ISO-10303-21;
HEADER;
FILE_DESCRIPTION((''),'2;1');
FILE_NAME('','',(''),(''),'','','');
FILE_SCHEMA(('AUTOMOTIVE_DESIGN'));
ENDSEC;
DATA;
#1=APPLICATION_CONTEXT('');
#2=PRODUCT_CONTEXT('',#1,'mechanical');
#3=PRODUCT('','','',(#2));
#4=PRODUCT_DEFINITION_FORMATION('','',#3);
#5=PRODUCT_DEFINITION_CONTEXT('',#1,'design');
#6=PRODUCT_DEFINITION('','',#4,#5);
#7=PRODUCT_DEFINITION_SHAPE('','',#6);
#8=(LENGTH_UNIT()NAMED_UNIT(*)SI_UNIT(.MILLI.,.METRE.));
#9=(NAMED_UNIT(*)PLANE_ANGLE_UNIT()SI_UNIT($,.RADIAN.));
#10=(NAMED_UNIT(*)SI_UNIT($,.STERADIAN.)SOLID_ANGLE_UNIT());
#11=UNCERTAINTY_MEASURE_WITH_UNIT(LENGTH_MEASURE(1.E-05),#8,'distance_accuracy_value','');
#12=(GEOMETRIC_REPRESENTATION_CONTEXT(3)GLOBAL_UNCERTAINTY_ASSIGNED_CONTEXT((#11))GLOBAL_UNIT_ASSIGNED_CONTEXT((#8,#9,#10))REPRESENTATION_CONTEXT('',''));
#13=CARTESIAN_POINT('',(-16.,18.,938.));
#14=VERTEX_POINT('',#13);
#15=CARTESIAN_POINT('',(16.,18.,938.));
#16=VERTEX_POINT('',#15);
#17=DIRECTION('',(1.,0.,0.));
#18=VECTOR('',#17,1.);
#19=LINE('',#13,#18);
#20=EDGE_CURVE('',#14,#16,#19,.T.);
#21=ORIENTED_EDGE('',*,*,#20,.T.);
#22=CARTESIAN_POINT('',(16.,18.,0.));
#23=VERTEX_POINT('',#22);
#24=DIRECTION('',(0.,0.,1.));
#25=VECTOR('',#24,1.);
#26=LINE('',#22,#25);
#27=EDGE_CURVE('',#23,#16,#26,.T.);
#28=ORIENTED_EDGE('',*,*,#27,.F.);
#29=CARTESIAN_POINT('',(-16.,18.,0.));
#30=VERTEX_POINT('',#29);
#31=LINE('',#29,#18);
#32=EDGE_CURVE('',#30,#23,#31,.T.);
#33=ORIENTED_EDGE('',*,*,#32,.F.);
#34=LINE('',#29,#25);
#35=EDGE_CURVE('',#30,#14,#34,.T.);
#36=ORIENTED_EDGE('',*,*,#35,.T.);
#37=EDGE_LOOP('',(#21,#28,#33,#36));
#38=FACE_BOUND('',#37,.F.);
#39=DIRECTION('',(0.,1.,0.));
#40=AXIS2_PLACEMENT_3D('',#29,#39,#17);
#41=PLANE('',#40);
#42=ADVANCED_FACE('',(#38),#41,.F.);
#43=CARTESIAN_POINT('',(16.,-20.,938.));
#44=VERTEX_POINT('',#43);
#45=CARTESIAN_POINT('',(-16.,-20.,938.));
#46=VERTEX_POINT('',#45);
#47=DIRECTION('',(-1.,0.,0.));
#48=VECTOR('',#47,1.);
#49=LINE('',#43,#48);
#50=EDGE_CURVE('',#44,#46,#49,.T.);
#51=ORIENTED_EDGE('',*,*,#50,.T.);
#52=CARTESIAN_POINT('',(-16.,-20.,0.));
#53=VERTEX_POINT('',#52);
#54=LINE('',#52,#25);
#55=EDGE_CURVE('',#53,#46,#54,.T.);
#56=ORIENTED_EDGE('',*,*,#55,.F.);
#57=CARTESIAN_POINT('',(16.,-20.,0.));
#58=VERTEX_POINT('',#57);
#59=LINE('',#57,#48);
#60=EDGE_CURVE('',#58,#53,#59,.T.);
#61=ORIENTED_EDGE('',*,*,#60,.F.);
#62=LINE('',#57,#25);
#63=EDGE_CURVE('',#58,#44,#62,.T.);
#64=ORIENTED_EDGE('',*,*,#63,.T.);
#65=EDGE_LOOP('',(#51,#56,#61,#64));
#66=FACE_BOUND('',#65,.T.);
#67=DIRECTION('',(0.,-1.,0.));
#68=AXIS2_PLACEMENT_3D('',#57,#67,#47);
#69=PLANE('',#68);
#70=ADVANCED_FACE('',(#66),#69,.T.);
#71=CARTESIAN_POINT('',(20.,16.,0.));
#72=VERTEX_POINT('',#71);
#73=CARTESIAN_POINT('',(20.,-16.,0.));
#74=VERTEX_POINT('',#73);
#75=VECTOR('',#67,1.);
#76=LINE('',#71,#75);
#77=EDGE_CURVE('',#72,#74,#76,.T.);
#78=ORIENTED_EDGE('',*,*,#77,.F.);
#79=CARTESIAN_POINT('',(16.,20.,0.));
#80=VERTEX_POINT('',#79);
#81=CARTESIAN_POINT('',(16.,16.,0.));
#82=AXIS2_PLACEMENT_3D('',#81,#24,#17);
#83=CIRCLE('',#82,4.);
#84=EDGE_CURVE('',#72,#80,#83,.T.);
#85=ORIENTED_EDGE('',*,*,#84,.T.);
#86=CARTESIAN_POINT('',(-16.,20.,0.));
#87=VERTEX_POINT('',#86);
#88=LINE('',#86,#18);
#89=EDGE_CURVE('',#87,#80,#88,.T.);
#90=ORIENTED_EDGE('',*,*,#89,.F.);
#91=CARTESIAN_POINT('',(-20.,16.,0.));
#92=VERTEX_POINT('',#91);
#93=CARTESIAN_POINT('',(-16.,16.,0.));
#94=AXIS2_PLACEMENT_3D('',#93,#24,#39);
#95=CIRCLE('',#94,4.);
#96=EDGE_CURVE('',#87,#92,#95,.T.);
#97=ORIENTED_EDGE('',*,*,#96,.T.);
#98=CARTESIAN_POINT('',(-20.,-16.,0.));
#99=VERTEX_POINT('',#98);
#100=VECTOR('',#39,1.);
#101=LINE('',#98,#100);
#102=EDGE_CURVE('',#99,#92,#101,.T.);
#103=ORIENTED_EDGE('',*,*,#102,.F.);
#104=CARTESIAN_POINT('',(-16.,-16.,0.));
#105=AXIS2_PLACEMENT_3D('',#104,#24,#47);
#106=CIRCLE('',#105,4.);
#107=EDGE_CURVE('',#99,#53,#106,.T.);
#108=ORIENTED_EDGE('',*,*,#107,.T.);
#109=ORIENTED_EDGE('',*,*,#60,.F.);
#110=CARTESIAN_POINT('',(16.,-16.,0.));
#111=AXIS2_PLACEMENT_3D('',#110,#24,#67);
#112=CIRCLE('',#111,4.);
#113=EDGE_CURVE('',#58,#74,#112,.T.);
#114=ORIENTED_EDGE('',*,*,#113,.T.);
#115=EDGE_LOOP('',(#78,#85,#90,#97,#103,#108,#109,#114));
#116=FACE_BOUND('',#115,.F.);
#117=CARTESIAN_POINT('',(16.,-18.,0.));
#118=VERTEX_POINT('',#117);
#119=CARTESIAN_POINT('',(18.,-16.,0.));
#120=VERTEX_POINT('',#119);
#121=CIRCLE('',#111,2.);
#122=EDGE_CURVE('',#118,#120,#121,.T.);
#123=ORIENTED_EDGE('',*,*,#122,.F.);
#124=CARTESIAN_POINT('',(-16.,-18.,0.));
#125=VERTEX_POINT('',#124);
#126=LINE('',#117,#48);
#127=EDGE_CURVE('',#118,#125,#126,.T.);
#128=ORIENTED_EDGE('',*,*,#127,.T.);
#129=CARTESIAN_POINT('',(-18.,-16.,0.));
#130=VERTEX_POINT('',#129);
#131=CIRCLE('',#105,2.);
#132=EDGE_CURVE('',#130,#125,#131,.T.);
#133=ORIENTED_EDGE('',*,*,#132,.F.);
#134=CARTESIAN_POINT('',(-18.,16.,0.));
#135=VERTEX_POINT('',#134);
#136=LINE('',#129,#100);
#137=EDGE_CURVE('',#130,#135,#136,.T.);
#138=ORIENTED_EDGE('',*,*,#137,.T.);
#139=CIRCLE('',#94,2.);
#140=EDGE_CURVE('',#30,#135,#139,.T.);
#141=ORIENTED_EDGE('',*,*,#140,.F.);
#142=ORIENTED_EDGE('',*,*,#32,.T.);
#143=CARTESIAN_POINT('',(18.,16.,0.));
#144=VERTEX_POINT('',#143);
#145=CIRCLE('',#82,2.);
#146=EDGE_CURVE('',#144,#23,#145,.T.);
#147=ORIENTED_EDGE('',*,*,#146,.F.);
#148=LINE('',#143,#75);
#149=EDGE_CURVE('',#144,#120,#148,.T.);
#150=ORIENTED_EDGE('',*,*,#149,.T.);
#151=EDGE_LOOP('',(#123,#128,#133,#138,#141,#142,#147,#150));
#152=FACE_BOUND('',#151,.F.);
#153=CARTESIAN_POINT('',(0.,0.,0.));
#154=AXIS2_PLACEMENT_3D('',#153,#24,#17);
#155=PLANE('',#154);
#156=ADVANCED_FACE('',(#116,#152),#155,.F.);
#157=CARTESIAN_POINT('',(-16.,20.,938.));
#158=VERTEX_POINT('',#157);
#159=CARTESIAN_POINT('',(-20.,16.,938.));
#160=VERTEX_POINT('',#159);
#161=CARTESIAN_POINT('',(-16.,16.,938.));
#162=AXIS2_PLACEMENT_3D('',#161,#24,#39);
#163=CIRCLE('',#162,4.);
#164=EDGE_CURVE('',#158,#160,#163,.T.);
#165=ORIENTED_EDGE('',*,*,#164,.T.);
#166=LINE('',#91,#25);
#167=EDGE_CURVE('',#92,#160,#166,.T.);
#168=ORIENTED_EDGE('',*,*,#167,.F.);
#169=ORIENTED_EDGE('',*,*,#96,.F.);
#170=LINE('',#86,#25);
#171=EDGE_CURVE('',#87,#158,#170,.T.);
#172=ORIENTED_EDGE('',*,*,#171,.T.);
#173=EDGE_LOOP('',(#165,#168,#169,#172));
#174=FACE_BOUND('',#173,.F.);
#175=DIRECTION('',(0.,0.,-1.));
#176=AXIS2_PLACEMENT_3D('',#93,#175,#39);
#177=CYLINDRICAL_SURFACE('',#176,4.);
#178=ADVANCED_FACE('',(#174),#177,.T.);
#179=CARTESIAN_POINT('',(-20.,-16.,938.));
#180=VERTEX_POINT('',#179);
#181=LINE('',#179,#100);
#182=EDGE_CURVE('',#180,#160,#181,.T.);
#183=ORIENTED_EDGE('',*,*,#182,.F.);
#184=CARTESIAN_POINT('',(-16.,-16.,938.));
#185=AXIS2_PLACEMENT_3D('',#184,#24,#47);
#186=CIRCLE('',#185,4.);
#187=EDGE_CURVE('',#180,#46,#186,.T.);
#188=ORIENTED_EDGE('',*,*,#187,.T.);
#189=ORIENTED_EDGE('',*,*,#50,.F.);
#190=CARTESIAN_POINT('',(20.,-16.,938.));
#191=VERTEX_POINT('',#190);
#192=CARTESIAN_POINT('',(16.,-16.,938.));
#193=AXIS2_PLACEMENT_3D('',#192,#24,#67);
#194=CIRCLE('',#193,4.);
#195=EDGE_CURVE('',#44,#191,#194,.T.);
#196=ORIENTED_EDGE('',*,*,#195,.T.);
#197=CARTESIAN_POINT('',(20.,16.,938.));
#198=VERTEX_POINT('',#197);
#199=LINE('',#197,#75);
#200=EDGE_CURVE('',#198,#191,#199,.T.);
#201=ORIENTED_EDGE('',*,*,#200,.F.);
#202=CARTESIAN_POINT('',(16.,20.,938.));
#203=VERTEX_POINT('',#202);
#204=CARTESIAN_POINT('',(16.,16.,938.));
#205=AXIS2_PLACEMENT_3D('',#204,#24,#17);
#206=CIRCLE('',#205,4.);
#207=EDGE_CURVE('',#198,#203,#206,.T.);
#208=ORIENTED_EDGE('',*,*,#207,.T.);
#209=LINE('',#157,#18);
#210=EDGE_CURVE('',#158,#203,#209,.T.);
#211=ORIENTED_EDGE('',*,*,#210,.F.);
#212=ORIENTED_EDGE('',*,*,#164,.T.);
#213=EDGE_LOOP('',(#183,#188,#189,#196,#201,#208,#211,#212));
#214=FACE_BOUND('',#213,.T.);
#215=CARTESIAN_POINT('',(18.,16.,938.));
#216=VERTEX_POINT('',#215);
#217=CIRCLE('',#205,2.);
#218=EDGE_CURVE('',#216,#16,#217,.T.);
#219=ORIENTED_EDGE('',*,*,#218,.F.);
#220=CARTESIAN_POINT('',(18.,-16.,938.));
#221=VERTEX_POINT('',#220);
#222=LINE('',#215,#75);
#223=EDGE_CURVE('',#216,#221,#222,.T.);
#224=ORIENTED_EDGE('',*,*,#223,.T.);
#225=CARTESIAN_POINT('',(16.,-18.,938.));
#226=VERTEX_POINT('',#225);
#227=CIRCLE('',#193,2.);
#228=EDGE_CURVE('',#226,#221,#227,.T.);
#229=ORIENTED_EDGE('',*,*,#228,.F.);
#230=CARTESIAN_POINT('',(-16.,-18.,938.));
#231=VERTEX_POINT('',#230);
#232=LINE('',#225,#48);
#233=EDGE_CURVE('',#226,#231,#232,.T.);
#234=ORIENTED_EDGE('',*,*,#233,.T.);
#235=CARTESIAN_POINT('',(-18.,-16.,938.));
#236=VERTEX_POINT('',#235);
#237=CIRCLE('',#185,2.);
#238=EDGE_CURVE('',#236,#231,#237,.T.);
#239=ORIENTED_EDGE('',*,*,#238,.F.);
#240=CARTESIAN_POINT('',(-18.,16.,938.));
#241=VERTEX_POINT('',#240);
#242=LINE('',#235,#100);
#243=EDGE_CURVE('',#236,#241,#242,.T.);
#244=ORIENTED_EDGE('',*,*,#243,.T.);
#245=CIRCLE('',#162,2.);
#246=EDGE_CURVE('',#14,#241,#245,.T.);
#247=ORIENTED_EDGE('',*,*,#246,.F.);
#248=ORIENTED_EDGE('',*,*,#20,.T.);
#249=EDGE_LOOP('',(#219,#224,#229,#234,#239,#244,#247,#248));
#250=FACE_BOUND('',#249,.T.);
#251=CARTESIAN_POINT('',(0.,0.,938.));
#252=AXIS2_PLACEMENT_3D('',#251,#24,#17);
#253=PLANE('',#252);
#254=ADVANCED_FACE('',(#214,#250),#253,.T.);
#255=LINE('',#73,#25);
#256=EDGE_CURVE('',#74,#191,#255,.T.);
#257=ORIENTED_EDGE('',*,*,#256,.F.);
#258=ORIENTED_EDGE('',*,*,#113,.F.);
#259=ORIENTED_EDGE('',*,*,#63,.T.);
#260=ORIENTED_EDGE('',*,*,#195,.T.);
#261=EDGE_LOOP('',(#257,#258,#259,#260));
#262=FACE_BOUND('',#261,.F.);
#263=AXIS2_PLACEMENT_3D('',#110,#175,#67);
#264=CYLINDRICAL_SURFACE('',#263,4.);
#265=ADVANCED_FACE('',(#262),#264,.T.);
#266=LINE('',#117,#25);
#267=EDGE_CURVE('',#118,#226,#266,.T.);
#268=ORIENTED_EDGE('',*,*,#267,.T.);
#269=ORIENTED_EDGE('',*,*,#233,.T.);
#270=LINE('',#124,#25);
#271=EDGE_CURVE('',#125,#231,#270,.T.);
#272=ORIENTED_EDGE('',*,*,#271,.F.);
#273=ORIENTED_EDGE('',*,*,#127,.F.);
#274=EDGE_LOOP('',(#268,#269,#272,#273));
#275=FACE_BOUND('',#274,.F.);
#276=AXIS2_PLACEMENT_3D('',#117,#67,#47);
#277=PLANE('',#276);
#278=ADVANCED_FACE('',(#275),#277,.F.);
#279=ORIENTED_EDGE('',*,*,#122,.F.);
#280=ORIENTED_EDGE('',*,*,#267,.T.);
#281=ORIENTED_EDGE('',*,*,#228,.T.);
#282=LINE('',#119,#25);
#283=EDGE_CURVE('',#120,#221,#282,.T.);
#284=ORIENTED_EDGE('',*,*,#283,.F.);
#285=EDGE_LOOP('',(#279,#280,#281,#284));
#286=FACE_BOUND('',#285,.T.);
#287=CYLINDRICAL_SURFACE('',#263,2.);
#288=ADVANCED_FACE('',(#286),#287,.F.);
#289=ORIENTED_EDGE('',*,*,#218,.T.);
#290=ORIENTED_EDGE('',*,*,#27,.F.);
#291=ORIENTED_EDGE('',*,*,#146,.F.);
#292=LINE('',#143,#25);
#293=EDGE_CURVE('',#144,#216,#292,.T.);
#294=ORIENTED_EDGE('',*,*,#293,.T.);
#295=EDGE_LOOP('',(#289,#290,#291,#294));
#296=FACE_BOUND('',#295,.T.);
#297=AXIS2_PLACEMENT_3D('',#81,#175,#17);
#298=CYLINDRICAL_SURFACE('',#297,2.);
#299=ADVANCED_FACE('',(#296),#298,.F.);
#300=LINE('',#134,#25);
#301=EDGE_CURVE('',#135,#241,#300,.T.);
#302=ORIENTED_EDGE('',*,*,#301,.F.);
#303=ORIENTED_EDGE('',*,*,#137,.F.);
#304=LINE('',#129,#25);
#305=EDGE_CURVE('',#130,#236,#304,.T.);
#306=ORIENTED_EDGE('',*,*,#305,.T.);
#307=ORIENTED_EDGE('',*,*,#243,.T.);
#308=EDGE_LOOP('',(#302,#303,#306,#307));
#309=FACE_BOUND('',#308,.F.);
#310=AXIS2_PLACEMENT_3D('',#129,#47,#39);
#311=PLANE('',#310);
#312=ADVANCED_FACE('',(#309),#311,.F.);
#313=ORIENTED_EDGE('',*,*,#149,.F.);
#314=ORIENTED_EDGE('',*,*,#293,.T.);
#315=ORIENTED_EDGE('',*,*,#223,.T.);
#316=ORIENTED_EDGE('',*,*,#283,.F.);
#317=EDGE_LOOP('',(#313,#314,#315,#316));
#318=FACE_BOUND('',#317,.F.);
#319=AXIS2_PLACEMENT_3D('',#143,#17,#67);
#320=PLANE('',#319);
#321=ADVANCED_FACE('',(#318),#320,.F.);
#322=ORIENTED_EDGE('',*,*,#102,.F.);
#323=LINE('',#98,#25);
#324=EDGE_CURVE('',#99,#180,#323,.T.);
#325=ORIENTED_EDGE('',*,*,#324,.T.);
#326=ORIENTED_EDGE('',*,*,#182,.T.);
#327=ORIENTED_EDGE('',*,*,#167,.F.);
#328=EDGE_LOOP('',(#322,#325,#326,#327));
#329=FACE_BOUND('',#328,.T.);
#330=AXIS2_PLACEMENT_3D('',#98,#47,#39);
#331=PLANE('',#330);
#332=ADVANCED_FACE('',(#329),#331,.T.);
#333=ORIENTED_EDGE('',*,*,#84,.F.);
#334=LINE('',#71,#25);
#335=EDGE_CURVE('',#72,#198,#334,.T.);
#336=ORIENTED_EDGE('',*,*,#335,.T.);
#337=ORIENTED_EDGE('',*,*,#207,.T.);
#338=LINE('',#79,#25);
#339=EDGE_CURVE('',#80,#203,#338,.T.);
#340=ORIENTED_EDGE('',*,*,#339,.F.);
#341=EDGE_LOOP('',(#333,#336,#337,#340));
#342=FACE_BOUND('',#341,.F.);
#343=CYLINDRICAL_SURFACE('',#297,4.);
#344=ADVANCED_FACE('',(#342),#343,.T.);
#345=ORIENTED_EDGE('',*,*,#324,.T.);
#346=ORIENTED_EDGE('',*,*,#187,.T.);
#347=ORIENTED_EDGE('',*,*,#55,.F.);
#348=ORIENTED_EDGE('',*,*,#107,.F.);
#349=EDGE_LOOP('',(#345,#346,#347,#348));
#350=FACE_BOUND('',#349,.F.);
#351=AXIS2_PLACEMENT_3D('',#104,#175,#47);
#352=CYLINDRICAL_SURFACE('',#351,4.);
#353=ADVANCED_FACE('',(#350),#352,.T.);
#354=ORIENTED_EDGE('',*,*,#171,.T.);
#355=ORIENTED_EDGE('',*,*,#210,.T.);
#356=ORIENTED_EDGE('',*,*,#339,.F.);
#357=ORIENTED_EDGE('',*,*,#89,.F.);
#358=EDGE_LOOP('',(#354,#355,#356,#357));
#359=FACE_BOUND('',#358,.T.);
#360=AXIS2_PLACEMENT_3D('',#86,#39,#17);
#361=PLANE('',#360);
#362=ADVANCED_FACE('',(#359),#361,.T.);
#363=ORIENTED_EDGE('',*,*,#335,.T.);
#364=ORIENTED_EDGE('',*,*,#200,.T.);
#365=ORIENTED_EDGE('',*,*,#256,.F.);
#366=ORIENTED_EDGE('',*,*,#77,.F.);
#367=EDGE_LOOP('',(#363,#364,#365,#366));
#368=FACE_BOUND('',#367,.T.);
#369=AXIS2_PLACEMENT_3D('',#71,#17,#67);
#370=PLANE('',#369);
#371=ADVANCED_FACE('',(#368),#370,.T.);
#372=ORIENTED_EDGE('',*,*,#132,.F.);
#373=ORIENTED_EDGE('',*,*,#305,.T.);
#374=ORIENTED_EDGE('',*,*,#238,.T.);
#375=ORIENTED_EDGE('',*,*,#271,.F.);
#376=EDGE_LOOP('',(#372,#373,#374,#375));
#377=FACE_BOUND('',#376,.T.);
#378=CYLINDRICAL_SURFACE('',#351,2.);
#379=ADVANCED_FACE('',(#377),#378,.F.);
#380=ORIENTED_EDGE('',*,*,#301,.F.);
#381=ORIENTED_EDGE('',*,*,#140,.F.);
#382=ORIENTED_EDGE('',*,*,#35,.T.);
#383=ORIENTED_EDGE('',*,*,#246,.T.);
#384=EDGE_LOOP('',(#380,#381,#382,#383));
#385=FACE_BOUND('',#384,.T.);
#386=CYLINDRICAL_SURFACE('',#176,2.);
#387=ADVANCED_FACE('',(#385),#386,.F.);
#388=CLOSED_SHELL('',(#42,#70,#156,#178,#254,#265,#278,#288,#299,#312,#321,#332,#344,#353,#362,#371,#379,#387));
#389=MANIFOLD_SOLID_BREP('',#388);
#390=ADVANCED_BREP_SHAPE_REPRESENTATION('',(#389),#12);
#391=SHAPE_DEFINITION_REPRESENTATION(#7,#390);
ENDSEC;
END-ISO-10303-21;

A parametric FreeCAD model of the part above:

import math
import FreeCAD as App
import Part
import Sketcher
from FreeCAD import Vector
Q = App.Units.Quantity

doc = App.newDocument("Part")
params = doc.addObject("Spreadsheet::Sheet", "Params")
for row, (alias, value) in enumerate([
    ("sketch1_radius", "4 mm"),
    ("sketch1_radius2", "2 mm"),
    ("pad1_length", "938 mm"),
], start=1):
    params.set(f"A{row}", alias)
    params.set(f"B{row}", "=" + value)
    params.setAlias(f"B{row}", alias)

body = doc.addObject("PartDesign::Body", "Body")

sketch1 = doc.addObject("Sketcher::SketchObject", "Sketch")
body.addObject(sketch1)
sketch1.AttachmentSupport = (doc.XY_Plane, [""])
sketch1.MapMode = "FlatFace"
sketch1.addGeometry([
    Part.LineSegment(Vector(-20, 16, 0), Vector(-20, -16, 0)),
    Part.ArcOfCircle(Part.Circle(Vector(-16, -16, 0), Vector(0, 0, 1), 4), math.radians(180), math.radians(270)),
    Part.LineSegment(Vector(-16, -20, 0), Vector(16, -20, 0)),
    Part.ArcOfCircle(Part.Circle(Vector(16, -16, 0), Vector(0, 0, 1), 4), math.radians(-90), math.radians(0)),
    Part.LineSegment(Vector(20, -16, 0), Vector(20, 16, 0)),
    Part.ArcOfCircle(Part.Circle(Vector(16, 16, 0), Vector(0, 0, 1), 4), math.radians(0), math.radians(90)),
    Part.LineSegment(Vector(16, 20, 0), Vector(-16, 20, 0)),
    Part.ArcOfCircle(Part.Circle(Vector(-16, 16, 0), Vector(0, 0, 1), 4), math.radians(90), math.radians(180)),
    Part.ArcOfCircle(Part.Circle(Vector(-16, 16, 0), Vector(0, 0, 1), 2), math.radians(90), math.radians(180)),
    Part.LineSegment(Vector(-16, 18, 0), Vector(16, 18, 0)),
    Part.ArcOfCircle(Part.Circle(Vector(16, 16, 0), Vector(0, 0, 1), 2), math.radians(0), math.radians(90)),
    Part.LineSegment(Vector(18, 16, 0), Vector(18, -16, 0)),
    Part.ArcOfCircle(Part.Circle(Vector(16, -16, 0), Vector(0, 0, 1), 2), math.radians(-90), math.radians(0)),
    Part.LineSegment(Vector(16, -18, 0), Vector(-16, -18, 0)),
    Part.ArcOfCircle(Part.Circle(Vector(-16, -16, 0), Vector(0, 0, 1), 2), math.radians(180), math.radians(270)),
    Part.LineSegment(Vector(-18, -16, 0), Vector(-18, 16, 0)),
], False)
sketch1.addConstraint([
    Sketcher.Constraint("Tangent", 0, 2, 1, 1),
    Sketcher.Constraint("Tangent", 1, 2, 2, 1),
    Sketcher.Constraint("Tangent", 2, 2, 3, 1),
    Sketcher.Constraint("Tangent", 3, 2, 4, 1),
    Sketcher.Constraint("Tangent", 4, 2, 5, 1),
    Sketcher.Constraint("Tangent", 5, 2, 6, 1),
    Sketcher.Constraint("Tangent", 6, 2, 7, 1),
    Sketcher.Constraint("Tangent", 7, 2, 0, 1),
    Sketcher.Constraint("Tangent", 8, 1, 9, 1),
    Sketcher.Constraint("Tangent", 9, 2, 10, 2),
    Sketcher.Constraint("Tangent", 10, 1, 11, 1),
    Sketcher.Constraint("Tangent", 11, 2, 12, 2),
    Sketcher.Constraint("Tangent", 12, 1, 13, 1),
    Sketcher.Constraint("Tangent", 13, 2, 14, 2),
    Sketcher.Constraint("Tangent", 14, 1, 15, 1),
    Sketcher.Constraint("Tangent", 15, 2, 8, 2),
    Sketcher.Constraint("Vertical", 0),
    Sketcher.Constraint("Horizontal", 2),
    Sketcher.Constraint("Vertical", 4),
    Sketcher.Constraint("Horizontal", 6),
    Sketcher.Constraint("Horizontal", 9),
    Sketcher.Constraint("Vertical", 11),
    Sketcher.Constraint("Horizontal", 13),
    Sketcher.Constraint("Vertical", 15),
    Sketcher.Constraint("Coincident", 8, 3, 7, 3),
    Sketcher.Constraint("Coincident", 10, 3, 5, 3),
    Sketcher.Constraint("Coincident", 12, 3, 3, 3),
    Sketcher.Constraint("Equal", 1, 3),
    Sketcher.Constraint("Equal", 3, 5),
    Sketcher.Constraint("Equal", 5, 7),
    Sketcher.Constraint("Equal", 12, 14),
    Sketcher.Constraint("Symmetric", 1, 3, 5, 3, -1, 1),
    Sketcher.Constraint("Equal", 13, 0),
    Sketcher.Constraint("Radius", 1, Q("4 mm")),
    Sketcher.Constraint("Radius", 8, Q("2 mm")),
    Sketcher.Constraint("DistanceX", 0, 2, -1, 1, Q("20 mm")),
])
sketch1.setExpression("Constraints[33]", "Params.sketch1_radius")
sketch1.setExpression("Constraints[34]", "Params.sketch1_radius2")
pad1 = doc.addObject("PartDesign::Pad", "Pad")
body.addObject(pad1)
pad1.Profile = sketch1
pad1.setExpression("Length", "Params.pad1_length")

doc.recompute()
